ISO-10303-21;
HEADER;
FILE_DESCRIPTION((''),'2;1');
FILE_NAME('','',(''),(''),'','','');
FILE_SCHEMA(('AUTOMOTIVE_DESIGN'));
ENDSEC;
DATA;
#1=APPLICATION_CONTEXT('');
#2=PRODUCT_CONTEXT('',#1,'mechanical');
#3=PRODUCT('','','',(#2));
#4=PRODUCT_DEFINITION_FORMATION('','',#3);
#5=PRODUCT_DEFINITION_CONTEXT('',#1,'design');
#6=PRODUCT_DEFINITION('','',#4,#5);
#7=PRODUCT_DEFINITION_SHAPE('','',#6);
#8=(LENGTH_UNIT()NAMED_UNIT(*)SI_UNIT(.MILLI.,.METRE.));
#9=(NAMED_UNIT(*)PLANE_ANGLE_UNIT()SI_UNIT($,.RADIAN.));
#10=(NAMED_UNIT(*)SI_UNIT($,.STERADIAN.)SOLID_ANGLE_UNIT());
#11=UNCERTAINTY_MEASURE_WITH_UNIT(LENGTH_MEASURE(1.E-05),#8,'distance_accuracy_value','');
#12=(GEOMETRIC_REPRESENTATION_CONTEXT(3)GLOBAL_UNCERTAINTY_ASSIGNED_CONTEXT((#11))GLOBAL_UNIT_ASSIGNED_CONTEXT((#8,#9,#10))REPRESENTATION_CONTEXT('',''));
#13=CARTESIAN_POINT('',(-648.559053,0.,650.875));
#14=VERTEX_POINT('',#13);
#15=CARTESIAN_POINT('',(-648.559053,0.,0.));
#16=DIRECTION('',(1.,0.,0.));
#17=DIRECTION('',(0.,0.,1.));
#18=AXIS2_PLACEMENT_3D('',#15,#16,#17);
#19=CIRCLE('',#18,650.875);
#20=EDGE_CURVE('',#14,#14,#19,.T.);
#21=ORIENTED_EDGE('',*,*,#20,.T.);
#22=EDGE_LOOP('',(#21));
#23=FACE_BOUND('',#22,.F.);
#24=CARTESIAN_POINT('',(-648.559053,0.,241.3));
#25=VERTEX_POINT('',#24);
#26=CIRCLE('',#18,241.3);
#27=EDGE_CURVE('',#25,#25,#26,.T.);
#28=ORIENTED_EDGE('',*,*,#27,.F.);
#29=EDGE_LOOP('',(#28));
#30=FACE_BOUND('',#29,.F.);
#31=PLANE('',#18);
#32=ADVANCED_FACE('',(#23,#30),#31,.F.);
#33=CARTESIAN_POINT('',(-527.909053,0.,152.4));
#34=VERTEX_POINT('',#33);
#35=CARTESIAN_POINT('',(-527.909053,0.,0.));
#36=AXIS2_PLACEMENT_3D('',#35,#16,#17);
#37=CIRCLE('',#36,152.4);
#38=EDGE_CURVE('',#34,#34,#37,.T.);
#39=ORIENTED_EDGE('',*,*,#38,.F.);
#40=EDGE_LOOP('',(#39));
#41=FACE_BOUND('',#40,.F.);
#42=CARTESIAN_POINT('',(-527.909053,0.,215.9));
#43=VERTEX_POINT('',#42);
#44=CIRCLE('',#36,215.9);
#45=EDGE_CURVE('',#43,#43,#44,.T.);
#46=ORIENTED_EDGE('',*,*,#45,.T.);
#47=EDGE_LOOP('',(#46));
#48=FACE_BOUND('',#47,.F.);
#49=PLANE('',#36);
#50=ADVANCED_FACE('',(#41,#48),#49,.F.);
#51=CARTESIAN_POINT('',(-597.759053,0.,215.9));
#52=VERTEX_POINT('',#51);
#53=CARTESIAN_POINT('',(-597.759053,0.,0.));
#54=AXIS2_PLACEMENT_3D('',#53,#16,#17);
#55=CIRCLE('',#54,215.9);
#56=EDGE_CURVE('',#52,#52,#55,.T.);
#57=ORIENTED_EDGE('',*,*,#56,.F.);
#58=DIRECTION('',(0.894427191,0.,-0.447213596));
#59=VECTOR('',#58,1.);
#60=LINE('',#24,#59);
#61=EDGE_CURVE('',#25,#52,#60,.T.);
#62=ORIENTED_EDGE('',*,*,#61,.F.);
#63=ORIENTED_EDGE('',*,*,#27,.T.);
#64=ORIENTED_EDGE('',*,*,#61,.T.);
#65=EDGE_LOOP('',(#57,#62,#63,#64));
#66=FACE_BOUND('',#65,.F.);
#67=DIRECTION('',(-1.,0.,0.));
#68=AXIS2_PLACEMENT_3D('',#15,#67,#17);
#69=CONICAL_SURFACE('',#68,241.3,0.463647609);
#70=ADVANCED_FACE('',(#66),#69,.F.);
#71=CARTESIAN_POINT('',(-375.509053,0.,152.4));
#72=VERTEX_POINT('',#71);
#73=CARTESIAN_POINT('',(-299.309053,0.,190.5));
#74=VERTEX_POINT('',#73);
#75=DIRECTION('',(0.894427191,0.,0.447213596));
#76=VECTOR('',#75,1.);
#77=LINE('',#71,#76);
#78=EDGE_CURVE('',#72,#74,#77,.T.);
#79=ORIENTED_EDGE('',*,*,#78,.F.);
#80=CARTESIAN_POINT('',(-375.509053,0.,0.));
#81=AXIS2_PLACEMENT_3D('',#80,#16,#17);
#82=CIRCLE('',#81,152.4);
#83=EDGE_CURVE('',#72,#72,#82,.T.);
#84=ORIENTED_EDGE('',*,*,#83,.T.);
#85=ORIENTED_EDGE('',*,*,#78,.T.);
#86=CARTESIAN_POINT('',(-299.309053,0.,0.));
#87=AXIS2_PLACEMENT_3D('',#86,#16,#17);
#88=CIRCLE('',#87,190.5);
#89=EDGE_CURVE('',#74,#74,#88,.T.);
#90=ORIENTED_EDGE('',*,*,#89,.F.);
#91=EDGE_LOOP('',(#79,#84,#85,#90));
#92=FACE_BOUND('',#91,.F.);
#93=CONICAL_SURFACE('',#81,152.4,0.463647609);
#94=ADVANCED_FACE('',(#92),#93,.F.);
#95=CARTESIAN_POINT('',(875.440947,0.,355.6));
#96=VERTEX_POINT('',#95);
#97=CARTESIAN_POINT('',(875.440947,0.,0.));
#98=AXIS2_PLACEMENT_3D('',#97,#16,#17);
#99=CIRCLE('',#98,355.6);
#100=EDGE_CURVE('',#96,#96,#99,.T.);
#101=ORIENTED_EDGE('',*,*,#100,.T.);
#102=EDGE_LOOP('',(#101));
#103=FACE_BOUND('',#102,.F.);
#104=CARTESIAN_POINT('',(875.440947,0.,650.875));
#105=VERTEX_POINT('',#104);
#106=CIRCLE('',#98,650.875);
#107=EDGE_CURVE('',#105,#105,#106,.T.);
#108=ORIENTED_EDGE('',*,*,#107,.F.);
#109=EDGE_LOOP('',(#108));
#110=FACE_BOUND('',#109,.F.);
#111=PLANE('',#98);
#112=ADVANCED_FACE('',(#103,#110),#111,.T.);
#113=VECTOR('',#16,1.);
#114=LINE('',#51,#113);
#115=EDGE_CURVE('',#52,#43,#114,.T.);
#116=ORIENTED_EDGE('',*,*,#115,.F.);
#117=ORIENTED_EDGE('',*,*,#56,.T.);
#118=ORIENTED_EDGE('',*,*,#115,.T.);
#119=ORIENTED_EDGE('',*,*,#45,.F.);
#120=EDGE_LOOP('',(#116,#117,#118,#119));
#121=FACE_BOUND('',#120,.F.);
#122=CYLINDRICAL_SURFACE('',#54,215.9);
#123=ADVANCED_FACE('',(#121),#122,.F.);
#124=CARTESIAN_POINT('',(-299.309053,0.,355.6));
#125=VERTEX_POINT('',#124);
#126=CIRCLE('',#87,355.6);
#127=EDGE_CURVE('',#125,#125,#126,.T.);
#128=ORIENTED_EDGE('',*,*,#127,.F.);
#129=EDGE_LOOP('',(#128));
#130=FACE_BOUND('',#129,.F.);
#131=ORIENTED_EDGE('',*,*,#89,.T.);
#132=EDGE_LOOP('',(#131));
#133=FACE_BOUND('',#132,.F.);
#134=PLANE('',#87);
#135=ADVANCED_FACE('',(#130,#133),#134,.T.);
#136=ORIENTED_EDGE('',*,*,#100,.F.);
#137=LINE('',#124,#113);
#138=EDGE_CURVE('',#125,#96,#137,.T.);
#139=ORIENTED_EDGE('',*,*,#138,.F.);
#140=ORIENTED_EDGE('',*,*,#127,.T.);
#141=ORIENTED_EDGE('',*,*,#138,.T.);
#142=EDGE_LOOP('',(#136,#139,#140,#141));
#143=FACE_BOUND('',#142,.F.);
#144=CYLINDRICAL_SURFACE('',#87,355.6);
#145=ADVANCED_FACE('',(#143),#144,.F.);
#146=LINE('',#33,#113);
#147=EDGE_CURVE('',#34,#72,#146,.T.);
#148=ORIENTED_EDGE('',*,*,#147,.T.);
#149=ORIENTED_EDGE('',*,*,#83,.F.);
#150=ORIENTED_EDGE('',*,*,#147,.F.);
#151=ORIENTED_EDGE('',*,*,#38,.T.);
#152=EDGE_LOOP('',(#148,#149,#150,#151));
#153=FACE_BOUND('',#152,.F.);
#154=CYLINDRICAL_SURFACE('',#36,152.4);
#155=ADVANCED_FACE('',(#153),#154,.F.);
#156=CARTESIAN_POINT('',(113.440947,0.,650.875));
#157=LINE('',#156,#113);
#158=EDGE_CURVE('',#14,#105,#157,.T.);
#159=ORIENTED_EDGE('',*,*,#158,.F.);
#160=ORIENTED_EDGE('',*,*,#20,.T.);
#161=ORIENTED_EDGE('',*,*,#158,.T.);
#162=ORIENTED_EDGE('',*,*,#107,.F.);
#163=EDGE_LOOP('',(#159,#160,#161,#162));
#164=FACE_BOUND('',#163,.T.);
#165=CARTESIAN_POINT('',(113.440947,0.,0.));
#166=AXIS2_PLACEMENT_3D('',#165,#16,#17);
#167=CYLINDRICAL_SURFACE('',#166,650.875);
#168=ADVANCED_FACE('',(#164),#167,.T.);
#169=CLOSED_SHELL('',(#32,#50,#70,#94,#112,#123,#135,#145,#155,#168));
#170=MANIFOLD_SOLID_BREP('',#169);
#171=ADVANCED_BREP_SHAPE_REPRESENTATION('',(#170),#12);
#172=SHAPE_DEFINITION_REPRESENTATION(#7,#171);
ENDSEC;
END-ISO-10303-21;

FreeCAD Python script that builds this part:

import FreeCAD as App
import Part
import Sketcher
from FreeCAD import Vector
Q = App.Units.Quantity


def add_polygon(sketch, points):
    """Adds a closed chain of lines whose ends are joined by coincident constraints."""
    first, n = sketch.GeometryCount, len(points)
    for a, b in zip(points, points[1:] + points[:1]):
        sketch.addGeometry(Part.LineSegment(App.Vector(*a, 0), App.Vector(*b, 0)), False)
    for i in range(n):
        sketch.addConstraint(Sketcher.Constraint("Coincident", first + i, 2, first + (i + 1) % n, 1))

doc = App.newDocument("Part")
body = doc.addObject("PartDesign::Body", "Body")

# Sketch on XZ plane
sketch1 = doc.addObject("Sketcher::SketchObject", "Sketch")
body.addObject(sketch1)
sketch1.AttachmentSupport = (doc.XZ_Plane, [""])
sketch1.MapMode = "FlatFace"
add_polygon(sketch1, [(-649, 241), (-598, 216), (-528, 216), (-528, 152), (-376, 152), (-299, 190), (-299, 356), (875, 356), (875, 651), (-649, 651)])  # lines 0-9
sketch1.addConstraint([
    Sketcher.Constraint("Horizontal", 1),
    Sketcher.Constraint("Vertical", 2),
    Sketcher.Constraint("Horizontal", 3),
    Sketcher.Constraint("Vertical", 5),
    Sketcher.Constraint("Horizontal", 6),
    Sketcher.Constraint("Vertical", 7),
    Sketcher.Constraint("Horizontal", 8),
    Sketcher.Constraint("Vertical", 9),
    Sketcher.Constraint("DistanceX", 3, 1, 3, 2, Q("6 in")),
    Sketcher.Constraint("DistanceX", 8, 2, 8, 1, Q("60 in")),
    Sketcher.Constraint("DistanceY", 2, 2, 2, 1, Q("2.5 in")),
    Sketcher.Constraint("DistanceY", 5, 1, 5, 2, Q("6.5 in")),
    Sketcher.Constraint("DistanceY", -1, 1, 2, 2, Q("6 in")),
    Sketcher.Constraint("DistanceY", -1, 1, 5, 2, Q("14 in")),
    Sketcher.Constraint("DistanceX", 3, 2, 4, 2, Q("3 in")),
    Sketcher.Constraint("DistanceX", 8, 2, 0, 2, Q("2 in")),
    Sketcher.Constraint("DistanceY", 0, 2, 9, 2, Q("1 in")),
    Sketcher.Constraint("DistanceX", 1, 1, 1, 2, Q("2.75 in")),
    Sketcher.Constraint("DistanceY", 7, 1, 7, 2, Q("11.625 in")),
    Sketcher.Constraint("DistanceX", 0, 2, -1, 1, 597.759053),
])
revolution = doc.addObject("PartDesign::Revolution", "Revolution")
body.addObject(revolution)
revolution.Profile = sketch1
revolution.ReferenceAxis = (sketch1, ["H_Axis"])
revolution.Angle = 360

doc.recompute()
